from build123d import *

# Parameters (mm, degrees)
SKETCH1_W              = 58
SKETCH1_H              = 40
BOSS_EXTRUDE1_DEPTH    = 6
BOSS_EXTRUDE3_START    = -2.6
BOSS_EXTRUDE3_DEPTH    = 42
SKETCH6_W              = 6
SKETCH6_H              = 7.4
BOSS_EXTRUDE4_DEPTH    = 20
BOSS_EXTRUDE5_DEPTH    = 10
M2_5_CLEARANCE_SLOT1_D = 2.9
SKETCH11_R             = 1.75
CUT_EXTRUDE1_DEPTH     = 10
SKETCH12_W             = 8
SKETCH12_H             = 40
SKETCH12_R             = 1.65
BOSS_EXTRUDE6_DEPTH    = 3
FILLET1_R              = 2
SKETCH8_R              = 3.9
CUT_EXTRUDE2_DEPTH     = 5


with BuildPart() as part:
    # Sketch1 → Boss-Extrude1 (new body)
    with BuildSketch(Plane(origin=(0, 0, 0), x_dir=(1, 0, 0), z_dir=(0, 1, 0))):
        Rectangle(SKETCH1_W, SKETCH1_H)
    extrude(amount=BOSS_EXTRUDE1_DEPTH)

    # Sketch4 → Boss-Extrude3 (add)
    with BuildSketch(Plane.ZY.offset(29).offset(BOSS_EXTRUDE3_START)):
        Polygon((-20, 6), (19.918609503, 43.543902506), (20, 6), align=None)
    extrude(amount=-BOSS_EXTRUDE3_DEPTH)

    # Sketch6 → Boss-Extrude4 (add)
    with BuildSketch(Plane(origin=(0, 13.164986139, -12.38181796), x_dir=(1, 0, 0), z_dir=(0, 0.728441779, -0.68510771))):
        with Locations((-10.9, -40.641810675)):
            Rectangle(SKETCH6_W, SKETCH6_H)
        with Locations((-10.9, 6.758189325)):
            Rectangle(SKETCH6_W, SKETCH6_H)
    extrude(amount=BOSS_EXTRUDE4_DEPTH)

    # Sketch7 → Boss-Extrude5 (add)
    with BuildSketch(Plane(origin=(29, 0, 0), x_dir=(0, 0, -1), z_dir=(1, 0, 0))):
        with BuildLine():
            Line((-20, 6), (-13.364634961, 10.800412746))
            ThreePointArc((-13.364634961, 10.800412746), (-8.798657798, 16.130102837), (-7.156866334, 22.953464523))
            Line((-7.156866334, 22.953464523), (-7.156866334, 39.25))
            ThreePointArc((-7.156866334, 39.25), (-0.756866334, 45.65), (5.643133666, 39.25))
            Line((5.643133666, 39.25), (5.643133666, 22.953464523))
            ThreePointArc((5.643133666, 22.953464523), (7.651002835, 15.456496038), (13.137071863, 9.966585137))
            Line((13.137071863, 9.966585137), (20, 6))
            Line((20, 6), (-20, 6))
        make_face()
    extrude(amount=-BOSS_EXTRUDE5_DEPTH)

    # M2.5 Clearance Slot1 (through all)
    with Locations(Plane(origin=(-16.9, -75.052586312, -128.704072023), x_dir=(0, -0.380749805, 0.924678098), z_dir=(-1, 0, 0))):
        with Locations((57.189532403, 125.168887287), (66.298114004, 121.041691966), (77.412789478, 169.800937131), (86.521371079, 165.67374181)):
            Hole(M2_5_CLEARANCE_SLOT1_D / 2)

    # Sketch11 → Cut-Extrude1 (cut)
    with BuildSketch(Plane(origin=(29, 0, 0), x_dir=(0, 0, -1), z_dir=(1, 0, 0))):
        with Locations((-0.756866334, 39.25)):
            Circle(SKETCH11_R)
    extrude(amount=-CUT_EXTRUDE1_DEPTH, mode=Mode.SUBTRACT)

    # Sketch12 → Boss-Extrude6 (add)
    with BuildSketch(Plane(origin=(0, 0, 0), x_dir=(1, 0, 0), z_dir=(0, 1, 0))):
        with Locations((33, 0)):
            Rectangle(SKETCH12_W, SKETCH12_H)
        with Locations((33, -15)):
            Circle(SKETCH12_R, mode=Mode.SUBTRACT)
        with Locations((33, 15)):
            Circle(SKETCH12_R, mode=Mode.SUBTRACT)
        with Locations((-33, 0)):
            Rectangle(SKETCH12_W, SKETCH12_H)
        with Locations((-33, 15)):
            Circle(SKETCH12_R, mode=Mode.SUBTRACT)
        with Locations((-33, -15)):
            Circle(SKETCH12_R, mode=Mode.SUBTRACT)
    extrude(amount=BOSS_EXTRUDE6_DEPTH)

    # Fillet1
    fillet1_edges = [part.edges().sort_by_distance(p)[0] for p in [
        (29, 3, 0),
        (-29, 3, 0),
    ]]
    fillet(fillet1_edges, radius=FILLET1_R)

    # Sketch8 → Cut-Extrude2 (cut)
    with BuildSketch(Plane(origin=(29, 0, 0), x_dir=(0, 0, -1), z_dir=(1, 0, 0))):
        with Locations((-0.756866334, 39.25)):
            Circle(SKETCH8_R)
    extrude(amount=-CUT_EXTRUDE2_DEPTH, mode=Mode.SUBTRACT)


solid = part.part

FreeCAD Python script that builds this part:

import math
import FreeCAD as App
import Part
import Sketcher

V = App.Vector
Q = App.Units.Quantity


def edges_at(feature, points):
    """Names of the edges that pass closest to the given points."""
    edges = feature.Shape.Edges
    near = lambda p: min(range(len(edges)), key=lambda i: edges[i].distToShape(Part.Vertex(*p))[0])
    return sorted({f"Edge{near(p) + 1}" for p in points})

doc = App.newDocument("Part")
params = doc.addObject("Spreadsheet::Sheet", "Params")
for row, (alias, value) in enumerate([
    ("sketch1_width", "58 mm"),
    ("sketch1_height", "40 mm"),
    ("pad1_length", "6 mm"),
    ("sketch2_height", "40 mm"),
    ("sketch2_length", "54.8 mm"),
    ("pad2_length", "42 mm"),
    ("sketch3_width", "6 mm"),
    ("sketch3_height", "7.4 mm"),
    ("pad3_length", "20 mm"),
    ("sketch4_radius", "15 mm"),
    ("sketch4_radius2", "6.4 mm"),
    ("sketch4_height", "40 mm"),
    ("pad4_length", "10 mm"),
    ("sketch5_diameter", "2.9 mm"),
    ("hole_diameter", "2.9 mm"),
    ("sketch6_diameter", "3.5 mm"),
    ("pocket1_length", "10 mm"),
    ("sketch7_diameter", "3.3 mm"),
    ("sketch7_width", "8 mm"),
    ("sketch7_height", "40 mm"),
    ("pad5_length", "3 mm"),
    ("fillet_radius", "2 mm"),
    ("sketch8_diameter", "7.8 mm"),
    ("pocket2_length", "5 mm"),
], start=1):
    params.set(f"A{row}", alias)
    params.set(f"B{row}", "=" + value)
    params.setAlias(f"B{row}", alias)

body = doc.addObject("PartDesign::Body", "Body")

# Sketch on XZ plane
sketch1 = body.newObject("Sketcher::SketchObject", "Sketch")
sketch1.AttachmentSupport = (doc.getObject("XZ_Plane"), [""])
sketch1.MapMode = "FlatFace"
sketch1.addGeometry(Part.LineSegment(V(-29, -20, 0), V(-29, 20, 0)), False)
sketch1.addGeometry(Part.LineSegment(V(-29, 20, 0), V(29, 20, 0)), False)
sketch1.addGeometry(Part.LineSegment(V(29, 20, 0), V(29, -20, 0)), False)
sketch1.addGeometry(Part.LineSegment(V(29, -20, 0), V(-29, -20, 0)), False)
sketch1.addConstraint(Sketcher.Constraint("Coincident", 0, 2, 1, 1))
sketch1.addConstraint(Sketcher.Constraint("Coincident", 1, 2, 2, 1))
sketch1.addConstraint(Sketcher.Constraint("Coincident", 2, 2, 3, 1))
sketch1.addConstraint(Sketcher.Constraint("Coincident", 3, 2, 0, 1))
sketch1.addConstraint(Sketcher.Constraint("Vertical", 0))
sketch1.addConstraint(Sketcher.Constraint("Horizontal", 1))
sketch1.addConstraint(Sketcher.Constraint("Vertical", 2))
sketch1.addConstraint(Sketcher.Constraint("Horizontal", 3))
sketch1.addConstraint(Sketcher.Constraint("Symmetric", 0, 2, 2, 2, -1, 1))
sketch1.addConstraint(Sketcher.Constraint("DistanceX", 1, 1, 1, 2, Q("58 mm")))
sketch1.addConstraint(Sketcher.Constraint("DistanceY", 0, 1, 0, 2, Q("40 mm")))
sketch1.setExpression("Constraints[9]", "Params.sketch1_width")
sketch1.setExpression("Constraints[10]", "Params.sketch1_height")
pad1 = body.newObject("PartDesign::Pad", "Pad")
pad1.Profile = sketch1
pad1.setExpression("Length", "Params.pad1_length")
pad1.Reversed = True

# Sketch on YZ plane
sketch2 = body.newObject("Sketcher::SketchObject", "Sketch001")
sketch2.AttachmentSupport = (doc.getObject("YZ_Plane"), [""])
sketch2.MapMode = "FlatFace"
sketch2.AttachmentOffset = App.Placement(V(0, 0, -26.4), App.Rotation())
sketch2.addGeometry(Part.LineSegment(V(44, 20, 0), V(6, -20, 0)), False)
sketch2.addGeometry(Part.LineSegment(V(6, -20, 0), V(6, 20, 0)), False)
sketch2.addGeometry(Part.LineSegment(V(6, 20, 0), V(44, 20, 0)), False)
sketch2.addConstraint(Sketcher.Constraint("Coincident", 0, 2, 1, 1))
sketch2.addConstraint(Sketcher.Constraint("Coincident", 1, 2, 2, 1))
sketch2.addConstraint(Sketcher.Constraint("Coincident", 2, 2, 0, 1))
sketch2.addConstraint(Sketcher.Constraint("Vertical", 1))
sketch2.addConstraint(Sketcher.Constraint("DistanceY", 1, 1, 1, 2, Q("40 mm")))
sketch2.addConstraint(Sketcher.Constraint("DistanceX", -1, 1, 0, 2, Q("6 mm")))
sketch2.addConstraint(Sketcher.Constraint("DistanceY", 0, 2, -1, 1, Q("20 mm")))
sketch2.addConstraint(Sketcher.Constraint("Distance", 0, Q("54.8 mm")))
sketch2.addConstraint(Sketcher.Constraint("Distance", 2, Q("37.543991 mm")))
sketch2.setExpression("Constraints[4]", "Params.sketch2_height")
sketch2.setExpression("Constraints[7]", "Params.sketch2_length")
pad2 = body.newObject("PartDesign::Pad", "Pad001")
pad2.Profile = sketch2
pad2.setExpression("Length", "Params.pad2_length")

# Sketch on an angled plane
sketch3 = body.newObject("Sketcher::SketchObject", "Sketch002")
sketch3.Placement = App.Placement(V(0, 13.164986, -12.381818), App.Rotation(V(1, 0, 0), V(0, -0.68510771, -0.728441779), V(0, 0.728441779, -0.68510771), "ZXY"))
sketch3.addGeometry(Part.LineSegment(V(-14, -37, 0), V(-14, -44, 0)), False)
sketch3.addGeometry(Part.LineSegment(V(-14, -44, 0), V(-8, -44, 0)), False)
sketch3.addGeometry(Part.LineSegment(V(-8, -44, 0), V(-8, -37, 0)), False)
sketch3.addGeometry(Part.LineSegment(V(-8, -37, 0), V(-14, -37, 0)), False)
sketch3.addGeometry(Part.LineSegment(V(-14, 10, 0), V(-14, 3, 0)), False)
sketch3.addGeometry(Part.LineSegment(V(-14, 3, 0), V(-8, 3, 0)), False)
sketch3.addGeometry(Part.LineSegment(V(-8, 3, 0), V(-8, 10, 0)), False)
sketch3.addGeometry(Part.LineSegment(V(-8, 10, 0), V(-14, 10, 0)), False)
sketch3.addConstraint(Sketcher.Constraint("Coincident", 0, 2, 1, 1))
sketch3.addConstraint(Sketcher.Constraint("Coincident", 1, 2, 2, 1))
sketch3.addConstraint(Sketcher.Constraint("Coincident", 2, 2, 3, 1))
sketch3.addConstraint(Sketcher.Constraint("Coincident", 3, 2, 0, 1))
sketch3.addConstraint(Sketcher.Constraint("Coincident", 4, 2, 5, 1))
sketch3.addConstraint(Sketcher.Constraint("Coincident", 5, 2, 6, 1))
sketch3.addConstraint(Sketcher.Constraint("Coincident", 6, 2, 7, 1))
sketch3.addConstraint(Sketcher.Constraint("Coincident", 7, 2, 4, 1))
sketch3.addConstraint(Sketcher.Constraint("Vertical", 0))
sketch3.addConstraint(Sketcher.Constraint("Horizontal", 1))
sketch3.addConstraint(Sketcher.Constraint("Vertical", 2))
sketch3.addConstraint(Sketcher.Constraint("Horizontal", 3))
sketch3.addConstraint(Sketcher.Constraint("Vertical", 4))
sketch3.addConstraint(Sketcher.Constraint("Horizontal", 5))
sketch3.addConstraint(Sketcher.Constraint("Vertical", 6))
sketch3.addConstraint(Sketcher.Constraint("Horizontal", 7))
sketch3.addConstraint(Sketcher.Constraint("Vertical", 3, 2, 4, 2))
sketch3.addConstraint(Sketcher.Constraint("Vertical", 2, 2, 5, 2))
sketch3.addConstraint(Sketcher.Constraint("Equal", 2, 4))
sketch3.addConstraint(Sketcher.Constraint("DistanceX", 1, 1, 1, 2, Q("6 mm")))
sketch3.addConstraint(Sketcher.Constraint("DistanceY", 0, 2, 0, 1, Q("7.4 mm")))
sketch3.addConstraint(Sketcher.Constraint("DistanceY", 3, 2, 4, 2, Q("40 mm")))
sketch3.addConstraint(Sketcher.Constraint("DistanceX", 0, 2, -1, 1, Q("13.9 mm")))
sketch3.addConstraint(Sketcher.Constraint("DistanceY", 0, 2, -1, 1, Q("44.341811 mm")))
sketch3.setExpression("Constraints[19]", "Params.sketch3_width")
sketch3.setExpression("Constraints[20]", "Params.sketch3_height")
pad3 = body.newObject("PartDesign::Pad", "Pad002")
pad3.Profile = sketch3
pad3.setExpression("Length", "Params.pad3_length")

# Sketch on YZ plane
sketch4 = body.newObject("Sketcher::SketchObject", "Sketch003")
sketch4.AttachmentSupport = (doc.getObject("YZ_Plane"), [""])
sketch4.MapMode = "FlatFace"
sketch4.AttachmentOffset = App.Placement(V(0, 0, 29), App.Rotation())
sketch4.addGeometry(Part.LineSegment(V(11, 13, 0), V(6, 20, 0)), False)
sketch4.addGeometry(Part.LineSegment(V(6, 20, 0), V(6, -20, 0)), False)
sketch4.addGeometry(Part.LineSegment(V(6, -20, 0), V(10, -13, 0)), False)
sketch4.addGeometry(Part.ArcOfCircle(Part.Circle(V(23, -21, 0), V(0, 0, 1), 15), math.radians(90), math.radians(150)), False)
sketch4.addGeometry(Part.LineSegment(V(23, -6, 0), V(39, -6, 0)), False)
sketch4.addGeometry(Part.ArcOfCircle(Part.Circle(V(39, 1, 0), V(0, 0, 1), 6), math.radians(-90), math.radians(90)), False)
sketch4.addGeometry(Part.LineSegment(V(39, 7, 0), V(23, 7, 0)), False)
sketch4.addGeometry(Part.ArcOfCircle(Part.Circle(V(23, 22, 0), V(0, 0, 1), 15), math.radians(-144), math.radians(-90)), False)
sketch4.addConstraint(Sketcher.Constraint("Coincident", 0, 2, 1, 1))
sketch4.addConstraint(Sketcher.Constraint("Coincident", 1, 2, 2, 1))
sketch4.addConstraint(Sketcher.Constraint("Tangent", 2, 2, 3, 2))
sketch4.addConstraint(Sketcher.Constraint("Tangent", 3, 1, 4, 1))
sketch4.addConstraint(Sketcher.Constraint("Tangent", 4, 2, 5, 1))
sketch4.addConstraint(Sketcher.Constraint("Tangent", 5, 2, 6, 1))
sketch4.addConstraint(Sketcher.Constraint("Tangent", 6, 2, 7, 2))
sketch4.addConstraint(Sketcher.Constraint("Tangent", 7, 1, 0, 1))
sketch4.addConstraint(Sketcher.Constraint("Vertical", 1))
sketch4.addConstraint(Sketcher.Constraint("Horizontal", 4))
sketch4.addConstraint(Sketcher.Constraint("Horizontal", 6))
sketch4.addConstraint(Sketcher.Constraint("Equal", 3, 7))
sketch4.addConstraint(Sketcher.Constraint("Vertical", 3, 3, 7, 3))
sketch4.addConstraint(Sketcher.Constraint("Radius", 3, Q("15 mm")))
sketch4.addConstraint(Sketcher.Constraint("Radius", 5, Q("6.4 mm")))
sketch4.addConstraint(Sketcher.Constraint("DistanceY", 1, 2, 1, 1, Q("40 mm")))
sketch4.addConstraint(Sketcher.Constraint("DistanceX", -1, 1, 0, 2, Q("6 mm")))
sketch4.addConstraint(Sketcher.Constraint("DistanceY", -1, 1, 0, 2, Q("20 mm")))
sketch4.addConstraint(Sketcher.Constraint("DistanceX", -1, 1, 5, 3, Q("39.25 mm")))
sketch4.addConstraint(Sketcher.Constraint("Distance", 0, Q("8.189752 mm")))
sketch4.addConstraint(Sketcher.Constraint("DistanceX", 4, 1, 4, 2, Q("16.296535 mm")))
sketch4.setExpression("Constraints[13]", "Params.sketch4_radius")
sketch4.setExpression("Constraints[14]", "Params.sketch4_radius2")
sketch4.setExpression("Constraints[15]", "Params.sketch4_height")
pad4 = body.newObject("PartDesign::Pad", "Pad003")
pad4.Profile = sketch4
pad4.setExpression("Length", "Params.pad4_length")
pad4.Reversed = True

# Sketch on YZ plane
sketch5 = body.newObject("Sketcher::SketchObject", "Sketch004")
sketch5.AttachmentSupport = (doc.getObject("YZ_Plane"), [""])
sketch5.MapMode = "FlatFace"
sketch5.AttachmentOffset = App.Placement(V(0, 0, -16.9), App.Rotation())
sketch5.addGeometry(Part.Circle(V(18.9, -28.2, 0), V(0, 0, 1), 1.4), False)
sketch5.addGeometry(Part.Circle(V(11.6, -21.3, 0), V(0, 0, 1), 1.4), False)
sketch5.addGeometry(Part.Circle(V(52.5, 7.5, 0), V(0, 0, 1), 1.4), False)
sketch5.addGeometry(Part.Circle(V(45.2, 14.4, 0), V(0, 0, 1), 1.4), False)
sketch5.addConstraint(Sketcher.Constraint("Equal", 0, 1))
sketch5.addConstraint(Sketcher.Constraint("Equal", 1, 2))
sketch5.addConstraint(Sketcher.Constraint("Equal", 2, 3))
sketch5.addConstraint(Sketcher.Constraint("Diameter", 0, Q("2.9 mm")))
sketch5.addConstraint(Sketcher.Constraint("DistanceX", -1, 1, 3, 3, Q("45.199299 mm")))
sketch5.addConstraint(Sketcher.Constraint("DistanceX", -1, 1, 0, 3, Q("18.913439 mm")))
sketch5.addConstraint(Sketcher.Constraint("DistanceX", -1, 1, 1, 3, Q("11.629021 mm")))
sketch5.addConstraint(Sketcher.Constraint("DistanceY", -1, 1, 3, 3, Q("14.38059 mm")))
sketch5.addConstraint(Sketcher.Constraint("DistanceY", 1, 3, 2, 3, Q("28.84257 mm")))
sketch5.addConstraint(Sketcher.Constraint("DistanceY", 0, 3, -1, 1, Q("28.164134 mm")))
sketch5.addConstraint(Sketcher.Constraint("DistanceY", 1, 3, -1, 1, Q("21.313057 mm")))
sketch5.addConstraint(Sketcher.Constraint("DistanceX", -1, 1, 2, 3, Q("52.483717 mm")))
sketch5.setExpression("Constraints[3]", "Params.sketch5_diameter")
doc.recompute()
hole = body.newObject("PartDesign::Hole", "Hole")
hole.Profile = sketch5
hole.ThreadType = "None"
hole.setExpression("Diameter", "Params.hole_diameter")
hole.DepthType = "ThroughAll"
hole.Reversed = True

# Sketch on YZ plane
sketch6 = body.newObject("Sketcher::SketchObject", "Sketch005")
sketch6.AttachmentSupport = (doc.getObject("YZ_Plane"), [""])
sketch6.MapMode = "FlatFace"
sketch6.AttachmentOffset = App.Placement(V(0, 0, 29), App.Rotation())
sketch6.addGeometry(Part.Circle(V(39.2, 0.8, 0), V(0, 0, 1), 1.8), False)
sketch6.addConstraint(Sketcher.Constraint("Diameter", 0, Q("3.5 mm")))
sketch6.addConstraint(Sketcher.Constraint("DistanceX", -1, 1, 0, 3, Q("39.25 mm")))
sketch6.addConstraint(Sketcher.Constraint("DistanceY", -1, 1, 0, 3, Q("0.756866 mm")))
sketch6.setExpression("Constraints[0]", "Params.sketch6_diameter")
pocket1 = body.newObject("PartDesign::Pocket", "Pocket")
pocket1.Profile = sketch6
pocket1.setExpression("Length", "Params.pocket1_length")

# Sketch on XZ plane
sketch7 = body.newObject("Sketcher::SketchObject", "Sketch006")
sketch7.AttachmentSupport = (doc.getObject("XZ_Plane"), [""])
sketch7.MapMode = "FlatFace"
sketch7.addGeometry(Part.LineSegment(V(29, -20, 0), V(29, 20, 0)), False)
sketch7.addGeometry(Part.LineSegment(V(29, 20, 0), V(37, 20, 0)), False)
sketch7.addGeometry(Part.LineSegment(V(37, 20, 0), V(37, -20, 0)), False)
sketch7.addGeometry(Part.LineSegment(V(37, -20, 0), V(29, -20, 0)), False)
sketch7.addGeometry(Part.Circle(V(33, 15, 0), V(0, 0, 1), 1.6), False)
sketch7.addGeometry(Part.Circle(V(33, -15, 0), V(0, 0, 1), 1.6), False)
sketch7.addGeometry(Part.LineSegment(V(-37, -20, 0), V(-37, 20, 0)), False)
sketch7.addGeometry(Part.LineSegment(V(-37, 20, 0), V(-29, 20, 0)), False)
sketch7.addGeometry(Part.LineSegment(V(-29, 20, 0), V(-29, -20, 0)), False)
sketch7.addGeometry(Part.LineSegment(V(-29, -20, 0), V(-37, -20, 0)), False)
sketch7.addGeometry(Part.Circle(V(-33, 15, 0), V(0, 0, 1), 1.6), False)
sketch7.addGeometry(Part.Circle(V(-33, -15, 0), V(0, 0, 1), 1.6), False)
sketch7.addConstraint(Sketcher.Constraint("Coincident", 0, 2, 1, 1))
sketch7.addConstraint(Sketcher.Constraint("Coincident", 1, 2, 2, 1))
sketch7.addConstraint(Sketcher.Constraint("Coincident", 2, 2, 3, 1))
sketch7.addConstraint(Sketcher.Constraint("Coincident", 3, 2, 0, 1))
sketch7.addConstraint(Sketcher.Constraint("Coincident", 6, 2, 7, 1))
sketch7.addConstraint(Sketcher.Constraint("Coincident", 7, 2, 8, 1))
sketch7.addConstraint(Sketcher.Constraint("Coincident", 8, 2, 9, 1))
sketch7.addConstraint(Sketcher.Constraint("Coincident", 9, 2, 6, 1))
sketch7.addConstraint(Sketcher.Constraint("Vertical", 0))
sketch7.addConstraint(Sketcher.Constraint("Horizontal", 1))
sketch7.addConstraint(Sketcher.Constraint("Vertical", 2))
sketch7.addConstraint(Sketcher.Constraint("Horizontal", 3))
sketch7.addConstraint(Sketcher.Constraint("Vertical", 6))
sketch7.addConstraint(Sketcher.Constraint("Horizontal", 7))
sketch7.addConstraint(Sketcher.Constraint("Vertical", 8))
sketch7.addConstraint(Sketcher.Constraint("Horizontal", 9))
sketch7.addConstraint(Sketcher.Constraint("Equal", 4, 5))
sketch7.addConstraint(Sketcher.Constraint("Equal", 5, 10))
sketch7.addConstraint(Sketcher.Constraint("Equal", 10, 11))
sketch7.addConstraint(Sketcher.Constraint("Symmetric", 5, 3, 10, 3, -1, 1))
sketch7.addConstraint(Sketcher.Constraint("Symmetric", 4, 3, 11, 3, -1, 1))
sketch7.addConstraint(Sketcher.Constraint("Symmetric", 2, 2, 6, 2, -1, 1))
sketch7.addConstraint(Sketcher.Constraint("Symmetric", 0, 2, 8, 2, -1, 1))
sketch7.addConstraint(Sketcher.Constraint("Symmetric", 4, 3, 10, 3, -2))
sketch7.addConstraint(Sketcher.Constraint("Horizontal", 1, 2, 6, 2))
sketch7.addConstraint(Sketcher.Constraint("Diameter", 4, Q("3.3 mm")))
sketch7.addConstraint(Sketcher.Constraint("DistanceX", 1, 1, 1, 2, Q("8 mm")))
sketch7.addConstraint(Sketcher.Constraint("DistanceY", 0, 1, 0, 2, Q("40 mm")))
sketch7.addConstraint(Sketcher.Constraint("DistanceX", -1, 1, 4, 3, Q("33 mm")))
sketch7.addConstraint(Sketcher.Constraint("DistanceY", -1, 1, 4, 3, Q("15 mm")))
sketch7.addConstraint(Sketcher.Constraint("DistanceX", -1, 1, 0, 2, Q("29 mm")))
sketch7.setExpression("Constraints[25]", "Params.sketch7_diameter")
sketch7.setExpression("Constraints[26]", "Params.sketch7_width")
sketch7.setExpression("Constraints[27]", "Params.sketch7_height")
pad5 = body.newObject("PartDesign::Pad", "Pad004")
pad5.Profile = sketch7
pad5.setExpression("Length", "Params.pad5_length")
pad5.Reversed = True
doc.recompute()

fillet = body.newObject("PartDesign::Fillet", "Fillet")
fillet.Base = (pad5, edges_at(pad5, [(29, 3, 0), (-29, 3, 0)]))
fillet.setExpression("Radius", "Params.fillet_radius")

# Sketch on YZ plane
sketch8 = body.newObject("Sketcher::SketchObject", "Sketch007")
sketch8.AttachmentSupport = (doc.getObject("YZ_Plane"), [""])
sketch8.MapMode = "FlatFace"
sketch8.AttachmentOffset = App.Placement(V(0, 0, 29), App.Rotation())
sketch8.addGeometry(Part.Circle(V(39.2, 0.8, 0), V(0, 0, 1), 3.9), False)
sketch8.addConstraint(Sketcher.Constraint("Diameter", 0, Q("7.8 mm")))
sketch8.addConstraint(Sketcher.Constraint("DistanceX", -1, 1, 0, 3, Q("39.25 mm")))
sketch8.addConstraint(Sketcher.Constraint("DistanceY", -1, 1, 0, 3, Q("0.756866 mm")))
sketch8.setExpression("Constraints[0]", "Params.sketch8_diameter")
pocket2 = body.newObject("PartDesign::Pocket", "Pocket001")
pocket2.Profile = sketch8
pocket2.setExpression("Length", "Params.pocket2_length")

doc.recompute()
